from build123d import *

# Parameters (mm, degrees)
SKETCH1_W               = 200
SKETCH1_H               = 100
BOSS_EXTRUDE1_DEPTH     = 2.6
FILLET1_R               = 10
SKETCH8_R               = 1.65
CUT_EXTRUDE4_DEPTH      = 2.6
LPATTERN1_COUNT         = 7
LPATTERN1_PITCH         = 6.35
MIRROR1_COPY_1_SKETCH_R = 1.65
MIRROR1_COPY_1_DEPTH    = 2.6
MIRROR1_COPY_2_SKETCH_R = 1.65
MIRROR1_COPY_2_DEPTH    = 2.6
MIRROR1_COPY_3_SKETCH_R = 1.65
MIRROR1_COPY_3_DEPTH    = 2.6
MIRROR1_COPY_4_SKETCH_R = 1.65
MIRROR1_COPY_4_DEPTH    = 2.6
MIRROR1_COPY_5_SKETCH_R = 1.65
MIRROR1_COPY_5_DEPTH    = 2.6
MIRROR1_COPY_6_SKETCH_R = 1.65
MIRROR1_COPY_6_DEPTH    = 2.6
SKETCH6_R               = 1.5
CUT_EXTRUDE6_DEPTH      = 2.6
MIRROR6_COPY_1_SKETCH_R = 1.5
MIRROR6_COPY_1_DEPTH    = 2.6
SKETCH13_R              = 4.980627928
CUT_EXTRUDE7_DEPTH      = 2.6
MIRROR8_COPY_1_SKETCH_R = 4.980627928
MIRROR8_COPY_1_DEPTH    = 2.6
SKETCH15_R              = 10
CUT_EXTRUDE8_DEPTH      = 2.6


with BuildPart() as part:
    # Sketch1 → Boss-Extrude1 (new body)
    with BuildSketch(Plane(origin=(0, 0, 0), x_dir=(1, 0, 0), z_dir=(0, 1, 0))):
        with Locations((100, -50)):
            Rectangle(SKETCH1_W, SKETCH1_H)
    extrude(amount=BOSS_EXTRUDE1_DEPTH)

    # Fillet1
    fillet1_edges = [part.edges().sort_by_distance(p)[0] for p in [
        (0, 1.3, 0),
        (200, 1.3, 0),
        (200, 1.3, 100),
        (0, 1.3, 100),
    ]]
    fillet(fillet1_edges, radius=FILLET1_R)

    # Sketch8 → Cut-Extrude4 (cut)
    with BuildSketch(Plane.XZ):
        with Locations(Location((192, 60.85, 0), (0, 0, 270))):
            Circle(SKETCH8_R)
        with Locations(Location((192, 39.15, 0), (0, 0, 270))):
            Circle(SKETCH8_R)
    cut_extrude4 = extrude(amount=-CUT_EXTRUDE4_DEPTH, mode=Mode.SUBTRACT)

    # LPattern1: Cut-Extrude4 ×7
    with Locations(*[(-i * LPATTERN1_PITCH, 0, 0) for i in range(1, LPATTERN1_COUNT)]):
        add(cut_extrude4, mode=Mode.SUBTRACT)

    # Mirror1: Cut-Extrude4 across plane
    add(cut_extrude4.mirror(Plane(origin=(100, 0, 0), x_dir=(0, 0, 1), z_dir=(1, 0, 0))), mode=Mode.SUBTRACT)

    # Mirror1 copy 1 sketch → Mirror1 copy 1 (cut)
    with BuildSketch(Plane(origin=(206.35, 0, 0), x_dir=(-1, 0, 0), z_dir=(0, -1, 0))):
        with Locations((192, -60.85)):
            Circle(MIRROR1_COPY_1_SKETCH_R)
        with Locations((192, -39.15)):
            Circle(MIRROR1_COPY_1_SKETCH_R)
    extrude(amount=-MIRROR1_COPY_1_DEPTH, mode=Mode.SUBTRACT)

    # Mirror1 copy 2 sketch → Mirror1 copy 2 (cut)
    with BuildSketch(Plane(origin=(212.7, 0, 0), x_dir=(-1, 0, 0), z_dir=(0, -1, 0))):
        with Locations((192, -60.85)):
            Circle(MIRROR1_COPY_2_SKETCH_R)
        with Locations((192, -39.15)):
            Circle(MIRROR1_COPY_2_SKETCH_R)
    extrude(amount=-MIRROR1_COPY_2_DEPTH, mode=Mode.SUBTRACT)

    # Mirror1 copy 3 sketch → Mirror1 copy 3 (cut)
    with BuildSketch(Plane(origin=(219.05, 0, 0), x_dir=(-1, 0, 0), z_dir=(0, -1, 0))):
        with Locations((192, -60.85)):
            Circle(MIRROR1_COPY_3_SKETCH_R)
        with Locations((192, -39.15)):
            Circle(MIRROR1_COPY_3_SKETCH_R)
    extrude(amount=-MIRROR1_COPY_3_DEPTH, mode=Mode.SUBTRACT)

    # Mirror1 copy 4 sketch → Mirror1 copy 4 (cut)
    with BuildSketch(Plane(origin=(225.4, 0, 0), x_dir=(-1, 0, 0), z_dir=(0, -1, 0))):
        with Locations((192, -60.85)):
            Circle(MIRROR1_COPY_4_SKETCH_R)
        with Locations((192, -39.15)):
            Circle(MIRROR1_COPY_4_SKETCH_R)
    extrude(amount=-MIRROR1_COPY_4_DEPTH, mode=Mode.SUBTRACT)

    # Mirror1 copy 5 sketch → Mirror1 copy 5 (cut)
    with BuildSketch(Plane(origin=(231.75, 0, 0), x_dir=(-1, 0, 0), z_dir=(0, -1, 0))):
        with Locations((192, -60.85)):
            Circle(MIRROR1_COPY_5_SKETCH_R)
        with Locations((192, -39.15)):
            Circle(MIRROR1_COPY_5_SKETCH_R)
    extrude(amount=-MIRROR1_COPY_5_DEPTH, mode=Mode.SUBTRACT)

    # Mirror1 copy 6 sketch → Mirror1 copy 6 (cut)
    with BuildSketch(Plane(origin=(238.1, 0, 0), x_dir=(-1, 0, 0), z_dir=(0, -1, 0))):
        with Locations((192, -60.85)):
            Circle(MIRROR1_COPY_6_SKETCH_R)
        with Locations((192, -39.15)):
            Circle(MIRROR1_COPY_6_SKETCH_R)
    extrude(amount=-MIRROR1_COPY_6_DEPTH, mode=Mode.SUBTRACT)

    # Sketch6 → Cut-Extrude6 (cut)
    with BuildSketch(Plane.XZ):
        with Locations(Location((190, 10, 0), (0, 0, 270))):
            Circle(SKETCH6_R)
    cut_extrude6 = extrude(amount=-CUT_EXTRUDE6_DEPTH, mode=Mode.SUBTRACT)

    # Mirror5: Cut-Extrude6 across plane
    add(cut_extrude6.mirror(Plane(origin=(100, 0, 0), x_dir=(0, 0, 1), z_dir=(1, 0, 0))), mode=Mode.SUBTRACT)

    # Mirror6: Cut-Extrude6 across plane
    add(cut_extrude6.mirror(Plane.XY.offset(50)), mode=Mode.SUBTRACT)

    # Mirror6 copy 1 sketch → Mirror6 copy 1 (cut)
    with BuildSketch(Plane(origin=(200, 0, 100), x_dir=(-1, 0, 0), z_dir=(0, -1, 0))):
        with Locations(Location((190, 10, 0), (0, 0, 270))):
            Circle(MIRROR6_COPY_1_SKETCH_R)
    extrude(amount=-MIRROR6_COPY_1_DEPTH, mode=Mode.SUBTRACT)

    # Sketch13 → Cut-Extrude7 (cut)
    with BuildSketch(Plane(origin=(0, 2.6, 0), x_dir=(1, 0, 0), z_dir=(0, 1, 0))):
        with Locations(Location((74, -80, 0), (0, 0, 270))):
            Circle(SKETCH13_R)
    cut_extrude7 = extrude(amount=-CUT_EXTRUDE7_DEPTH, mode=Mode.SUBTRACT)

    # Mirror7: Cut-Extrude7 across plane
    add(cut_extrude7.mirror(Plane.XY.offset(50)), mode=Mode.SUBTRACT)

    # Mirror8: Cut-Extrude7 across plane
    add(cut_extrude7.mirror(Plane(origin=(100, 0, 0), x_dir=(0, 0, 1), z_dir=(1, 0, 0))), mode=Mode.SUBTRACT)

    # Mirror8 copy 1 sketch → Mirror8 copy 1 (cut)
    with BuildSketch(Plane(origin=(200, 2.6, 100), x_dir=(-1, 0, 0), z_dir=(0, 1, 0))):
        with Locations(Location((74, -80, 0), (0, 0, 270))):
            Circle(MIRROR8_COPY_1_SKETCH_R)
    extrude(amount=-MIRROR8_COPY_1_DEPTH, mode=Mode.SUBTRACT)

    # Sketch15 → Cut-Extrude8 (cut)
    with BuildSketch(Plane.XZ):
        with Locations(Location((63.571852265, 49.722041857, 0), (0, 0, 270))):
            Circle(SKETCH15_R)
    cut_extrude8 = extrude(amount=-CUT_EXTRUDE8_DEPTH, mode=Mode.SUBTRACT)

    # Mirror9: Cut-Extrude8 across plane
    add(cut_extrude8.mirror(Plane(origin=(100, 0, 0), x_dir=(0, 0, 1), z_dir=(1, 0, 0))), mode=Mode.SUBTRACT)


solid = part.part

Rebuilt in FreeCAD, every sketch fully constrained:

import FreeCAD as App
import Part
import Sketcher
Q = App.Units.Quantity


def edges_at(feature, points):
    """Names of the edges that pass closest to the given points."""
    edges = feature.Shape.Edges
    near = lambda p: min(range(len(edges)), key=lambda i: edges[i].distToShape(Part.Vertex(*p))[0])
    return sorted({f"Edge{near(p) + 1}" for p in points})

doc = App.newDocument("Part")
params = doc.addObject("Spreadsheet::Sheet", "Params")
for row, (alias, value) in enumerate([
    ("sketch1_width", "200 mm"),
    ("sketch1_height", "100 mm"),
    ("pad1_length", "2.6 mm"),
    ("fillet_radius", "10 mm"),
    ("sketch2_diameter", "3.3 mm"),
    ("pocket1_length", "2.6 mm"),
    ("linearpattern_pitch", "6.35 mm"),
    ("sketch3_diameter", "3.3 mm"),
    ("pocket2_length", "2.6 mm"),
    ("sketch4_diameter", "3.3 mm"),
    ("pocket3_length", "2.6 mm"),
    ("sketch5_diameter", "3.3 mm"),
    ("pocket4_length", "2.6 mm"),
    ("sketch6_diameter", "3.3 mm"),
    ("pocket5_length", "2.6 mm"),
    ("sketch7_diameter", "3.3 mm"),
    ("pocket6_length", "2.6 mm"),
    ("sketch8_diameter", "3.3 mm"),
    ("pocket7_length", "2.6 mm"),
    ("sketch9_diameter", "3 mm"),
    ("pocket8_length", "2.6 mm"),
    ("sketch10_diameter", "3 mm"),
    ("pocket9_length", "2.6 mm"),
    ("pocket10_length", "2.6 mm"),
    ("pocket11_length", "2.6 mm"),
    ("sketch13_diameter", "20 mm"),
    ("pocket12_length", "2.6 mm"),
], start=1):
    params.set(f"A{row}", alias)
    params.set(f"B{row}", "=" + value)
    params.setAlias(f"B{row}", alias)

body = doc.addObject("PartDesign::Body", "Body")

sketch1 = body.newObject("Sketcher::SketchObject", "Sketch")
sketch1.AttachmentSupport = (doc.getObject("XZ_Plane"), [""])
sketch1.MapMode = "FlatFace"
sketch1.addGeometry(Part.LineSegment(App.Vector(0, 0, 0), App.Vector(0, 100, 0)), False)
sketch1.addGeometry(Part.LineSegment(App.Vector(0, 100, 0), App.Vector(200, 100, 0)), False)
sketch1.addGeometry(Part.LineSegment(App.Vector(200, 100, 0), App.Vector(200, 0, 0)), False)
sketch1.addGeometry(Part.LineSegment(App.Vector(200, 0, 0), App.Vector(0, 0, 0)), False)
sketch1.addConstraint(Sketcher.Constraint("Coincident", 0, 2, 1, 1))
sketch1.addConstraint(Sketcher.Constraint("Coincident", 1, 2, 2, 1))
sketch1.addConstraint(Sketcher.Constraint("Coincident", 2, 2, 3, 1))
sketch1.addConstraint(Sketcher.Constraint("Coincident", 3, 2, 0, 1))
sketch1.addConstraint(Sketcher.Constraint("Vertical", 0))
sketch1.addConstraint(Sketcher.Constraint("Horizontal", 1))
sketch1.addConstraint(Sketcher.Constraint("Vertical", 2))
sketch1.addConstraint(Sketcher.Constraint("Horizontal", 3))
sketch1.addConstraint(Sketcher.Constraint("Coincident", 3, 2, -1, 1))
sketch1.addConstraint(Sketcher.Constraint("DistanceX", 1, 1, 1, 2, Q("200 mm")))
sketch1.addConstraint(Sketcher.Constraint("DistanceY", 0, 1, 0, 2, Q("100 mm")))
sketch1.setExpression("Constraints[9]", "Params.sketch1_width")
sketch1.setExpression("Constraints[10]", "Params.sketch1_height")
pad1 = body.newObject("PartDesign::Pad", "Pad")
pad1.Profile = sketch1
pad1.setExpression("Length", "Params.pad1_length")
pad1.Reversed = True
doc.recompute()

fillet = body.newObject("PartDesign::Fillet", "Fillet")
fillet.Base = (pad1, edges_at(pad1, [
    (0, 1.3, 0),
    (200, 1.3, 0),
    (200, 1.3, 100),
    (0, 1.3, 100),
]))
fillet.setExpression("Radius", "Params.fillet_radius")

sketch2 = body.newObject("Sketcher::SketchObject", "Sketch001")
sketch2.AttachmentSupport = (doc.getObject("XZ_Plane"), [""])
sketch2.MapMode = "FlatFace"
sketch2.addGeometry(Part.Circle(App.Vector(192, 60.9, 0), App.Vector(0, 0, 1), 1.6), False)
sketch2.addGeometry(Part.Circle(App.Vector(192, 39.1, 0), App.Vector(0, 0, 1), 1.6), False)
sketch2.addConstraint(Sketcher.Constraint("Equal", 0, 1))
sketch2.addConstraint(Sketcher.Constraint("Vertical", 0, 3, 1, 3))
sketch2.addConstraint(Sketcher.Constraint("Diameter", 0, Q("3.3 mm")))
sketch2.addConstraint(Sketcher.Constraint("DistanceX", -1, 1, 0, 3, Q("192 mm")))
sketch2.addConstraint(Sketcher.Constraint("DistanceY", 1, 3, 0, 3, Q("21.7 mm")))
sketch2.addConstraint(Sketcher.Constraint("DistanceY", -1, 1, 0, 3, Q("60.85 mm")))
sketch2.setExpression("Constraints[2]", "Params.sketch2_diameter")
pocket1 = body.newObject("PartDesign::Pocket", "Pocket")
pocket1.Profile = sketch2
pocket1.setExpression("Length", "Params.pocket1_length")
doc.recompute()

linearpattern = body.newObject("PartDesign::LinearPattern", "LinearPattern")
linearpattern.Originals = [pocket1]
linearpattern.Direction = (doc.getObject("X_Axis"), [""])
linearpattern.Mode = "offset"
linearpattern.setExpression("Offset", "Params.linearpattern_pitch")
linearpattern.Occurrences = 7
linearpattern.Reversed = True
body.Tip = linearpattern
doc.recompute()

datumplane = body.newObject("PartDesign::Plane", "DatumPlane")
datumplane.AttachmentSupport = (doc.getObject("YZ_Plane"), [""])
datumplane.MapMode = "FlatFace"
datumplane.AttachmentOffset = App.Placement(App.Vector(0, 0, 100), App.Rotation())
mirrored = body.newObject("PartDesign::Mirrored", "Mirrored")
mirrored.Originals = [pocket1]
mirrored.MirrorPlane = (datumplane, [""])
body.Tip = mirrored

sketch3 = body.newObject("Sketcher::SketchObject", "Sketch002")
sketch3.AttachmentSupport = (doc.getObject("XZ_Plane"), [""])
sketch3.MapMode = "FlatFace"
sketch3.addGeometry(Part.Circle(App.Vector(14.3, 60.9, 0), App.Vector(0, 0, 1), 1.6), False)
sketch3.addGeometry(Part.Circle(App.Vector(14.3, 39.1, 0), App.Vector(0, 0, 1), 1.6), False)
sketch3.addConstraint(Sketcher.Constraint("Equal", 0, 1))
sketch3.addConstraint(Sketcher.Constraint("Vertical", 0, 3, 1, 3))
sketch3.addConstraint(Sketcher.Constraint("Diameter", 0, Q("3.3 mm")))
sketch3.addConstraint(Sketcher.Constraint("DistanceY", 1, 3, 0, 3, Q("21.7 mm")))
sketch3.addConstraint(Sketcher.Constraint("DistanceX", -1, 1, 0, 3, Q("14.35 mm")))
sketch3.addConstraint(Sketcher.Constraint("DistanceY", -1, 1, 0, 3, Q("60.85 mm")))
sketch3.setExpression("Constraints[2]", "Params.sketch3_diameter")
pocket2 = body.newObject("PartDesign::Pocket", "Pocket001")
pocket2.Profile = sketch3
pocket2.setExpression("Length", "Params.pocket2_length")

sketch4 = body.newObject("Sketcher::SketchObject", "Sketch003")
sketch4.AttachmentSupport = (doc.getObject("XZ_Plane"), [""])
sketch4.MapMode = "FlatFace"
sketch4.addGeometry(Part.Circle(App.Vector(20.7, 60.9, 0), App.Vector(0, 0, 1), 1.6), False)
sketch4.addGeometry(Part.Circle(App.Vector(20.7, 39.1, 0), App.Vector(0, 0, 1), 1.6), False)
sketch4.addConstraint(Sketcher.Constraint("Equal", 0, 1))
sketch4.addConstraint(Sketcher.Constraint("Vertical", 0, 3, 1, 3))
sketch4.addConstraint(Sketcher.Constraint("Diameter", 0, Q("3.3 mm")))
sketch4.addConstraint(Sketcher.Constraint("DistanceX", -1, 1, 0, 3, Q("20.7 mm")))
sketch4.addConstraint(Sketcher.Constraint("DistanceY", 1, 3, 0, 3, Q("21.7 mm")))
sketch4.addConstraint(Sketcher.Constraint("DistanceY", -1, 1, 0, 3, Q("60.85 mm")))
sketch4.setExpression("Constraints[2]", "Params.sketch4_diameter")
pocket3 = body.newObject("PartDesign::Pocket", "Pocket002")
pocket3.Profile = sketch4
pocket3.setExpression("Length", "Params.pocket3_length")

sketch5 = body.newObject("Sketcher::SketchObject", "Sketch004")
sketch5.AttachmentSupport = (doc.getObject("XZ_Plane"), [""])
sketch5.MapMode = "FlatFace"
sketch5.addGeometry(Part.Circle(App.Vector(27.1, 60.9, 0), App.Vector(0, 0, 1), 1.6), False)
sketch5.addGeometry(Part.Circle(App.Vector(27.1, 39.1, 0), App.Vector(0, 0, 1), 1.6), False)
sketch5.addConstraint(Sketcher.Constraint("Equal", 0, 1))
sketch5.addConstraint(Sketcher.Constraint("Vertical", 0, 3, 1, 3))
sketch5.addConstraint(Sketcher.Constraint("Diameter", 0, Q("3.3 mm")))
sketch5.addConstraint(Sketcher.Constraint("DistanceY", 1, 3, 0, 3, Q("21.7 mm")))
sketch5.addConstraint(Sketcher.Constraint("DistanceX", -1, 1, 0, 3, Q("27.05 mm")))
sketch5.addConstraint(Sketcher.Constraint("DistanceY", -1, 1, 0, 3, Q("60.85 mm")))
sketch5.setExpression("Constraints[2]", "Params.sketch5_diameter")
pocket4 = body.newObject("PartDesign::Pocket", "Pocket003")
pocket4.Profile = sketch5
pocket4.setExpression("Length", "Params.pocket4_length")

sketch6 = body.newObject("Sketcher::SketchObject", "Sketch005")
sketch6.AttachmentSupport = (doc.getObject("XZ_Plane"), [""])
sketch6.MapMode = "FlatFace"
sketch6.addGeometry(Part.Circle(App.Vector(33.4, 60.9, 0), App.Vector(0, 0, 1), 1.6), False)
sketch6.addGeometry(Part.Circle(App.Vector(33.4, 39.1, 0), App.Vector(0, 0, 1), 1.6), False)
sketch6.addConstraint(Sketcher.Constraint("Equal", 0, 1))
sketch6.addConstraint(Sketcher.Constraint("Vertical", 0, 3, 1, 3))
sketch6.addConstraint(Sketcher.Constraint("Diameter", 0, Q("3.3 mm")))
sketch6.addConstraint(Sketcher.Constraint("DistanceX", -1, 1, 0, 3, Q("33.4 mm")))
sketch6.addConstraint(Sketcher.Constraint("DistanceY", 1, 3, 0, 3, Q("21.7 mm")))
sketch6.addConstraint(Sketcher.Constraint("DistanceY", -1, 1, 0, 3, Q("60.85 mm")))
sketch6.setExpression("Constraints[2]", "Params.sketch6_diameter")
pocket5 = body.newObject("PartDesign::Pocket", "Pocket004")
pocket5.Profile = sketch6
pocket5.setExpression("Length", "Params.pocket5_length")

sketch7 = body.newObject("Sketcher::SketchObject", "Sketch006")
sketch7.AttachmentSupport = (doc.getObject("XZ_Plane"), [""])
sketch7.MapMode = "FlatFace"
sketch7.addGeometry(Part.Circle(App.Vector(39.8, 60.9, 0), App.Vector(0, 0, 1), 1.6), False)
sketch7.addGeometry(Part.Circle(App.Vector(39.8, 39.1, 0), App.Vector(0, 0, 1), 1.6), False)
sketch7.addConstraint(Sketcher.Constraint("Equal", 0, 1))
sketch7.addConstraint(Sketcher.Constraint("Vertical", 0, 3, 1, 3))
sketch7.addConstraint(Sketcher.Constraint("Diameter", 0, Q("3.3 mm")))
sketch7.addConstraint(Sketcher.Constraint("DistanceY", 1, 3, 0, 3, Q("21.7 mm")))
sketch7.addConstraint(Sketcher.Constraint("DistanceX", -1, 1, 0, 3, Q("39.75 mm")))
sketch7.addConstraint(Sketcher.Constraint("DistanceY", -1, 1, 0, 3, Q("60.85 mm")))
sketch7.setExpression("Constraints[2]", "Params.sketch7_diameter")
pocket6 = body.newObject("PartDesign::Pocket", "Pocket005")
pocket6.Profile = sketch7
pocket6.setExpression("Length", "Params.pocket6_length")

sketch8 = body.newObject("Sketcher::SketchObject", "Sketch007")
sketch8.AttachmentSupport = (doc.getObject("XZ_Plane"), [""])
sketch8.MapMode = "FlatFace"
sketch8.addGeometry(Part.Circle(App.Vector(46.1, 60.9, 0), App.Vector(0, 0, 1), 1.6), False)
sketch8.addGeometry(Part.Circle(App.Vector(46.1, 39.1, 0), App.Vector(0, 0, 1), 1.6), False)
sketch8.addConstraint(Sketcher.Constraint("Equal", 0, 1))
sketch8.addConstraint(Sketcher.Constraint("Vertical", 0, 3, 1, 3))
sketch8.addConstraint(Sketcher.Constraint("Diameter", 0, Q("3.3 mm")))
sketch8.addConstraint(Sketcher.Constraint("DistanceX", -1, 1, 0, 3, Q("46.1 mm")))
sketch8.addConstraint(Sketcher.Constraint("DistanceY", 1, 3, 0, 3, Q("21.7 mm")))
sketch8.addConstraint(Sketcher.Constraint("DistanceY", -1, 1, 0, 3, Q("60.85 mm")))
sketch8.setExpression("Constraints[2]", "Params.sketch8_diameter")
pocket7 = body.newObject("PartDesign::Pocket", "Pocket006")
pocket7.Profile = sketch8
pocket7.setExpression("Length", "Params.pocket7_length")

sketch9 = body.newObject("Sketcher::SketchObject", "Sketch008")
sketch9.AttachmentSupport = (doc.getObject("XZ_Plane"), [""])
sketch9.MapMode = "FlatFace"
sketch9.addGeometry(Part.Circle(App.Vector(190, 10, 0), App.Vector(0, 0, 1), 1.5), False)
sketch9.addConstraint(Sketcher.Constraint("Diameter", 0, Q("3 mm")))
sketch9.addConstraint(Sketcher.Constraint("DistanceX", -1, 1, 0, 3, Q("190 mm")))
sketch9.addConstraint(Sketcher.Constraint("DistanceY", -1, 1, 0, 3, Q("10 mm")))
sketch9.setExpression("Constraints[0]", "Params.sketch9_diameter")
pocket8 = body.newObject("PartDesign::Pocket", "Pocket007")
pocket8.Profile = sketch9
pocket8.setExpression("Length", "Params.pocket8_length")
doc.recompute()

datumplane2 = body.newObject("PartDesign::Plane", "DatumPlane001")
datumplane2.AttachmentSupport = (doc.getObject("YZ_Plane"), [""])
datumplane2.MapMode = "FlatFace"
datumplane2.AttachmentOffset = App.Placement(App.Vector(0, 0, 100), App.Rotation())
mirrored2 = body.newObject("PartDesign::Mirrored", "Mirrored001")
mirrored2.Originals = [pocket8]
mirrored2.MirrorPlane = (datumplane2, [""])
body.Tip = mirrored2
doc.recompute()

datumplane3 = body.newObject("PartDesign::Plane", "DatumPlane002")
datumplane3.AttachmentSupport = (doc.getObject("XY_Plane"), [""])
datumplane3.MapMode = "FlatFace"
datumplane3.AttachmentOffset = App.Placement(App.Vector(0, 0, 50), App.Rotation())
mirrored3 = body.newObject("PartDesign::Mirrored", "Mirrored002")
mirrored3.Originals = [pocket8]
mirrored3.MirrorPlane = (datumplane3, [""])
body.Tip = mirrored3

sketch10 = body.newObject("Sketcher::SketchObject", "Sketch009")
sketch10.AttachmentSupport = (doc.getObject("XZ_Plane"), [""])
sketch10.MapMode = "FlatFace"
sketch10.addGeometry(Part.Circle(App.Vector(10, 90, 0), App.Vector(0, 0, 1), 1.5), False)
sketch10.addConstraint(Sketcher.Constraint("Diameter", 0, Q("3 mm")))
sketch10.addConstraint(Sketcher.Constraint("DistanceX", -1, 1, 0, 3, Q("10 mm")))
sketch10.addConstraint(Sketcher.Constraint("DistanceY", -1, 1, 0, 3, Q("90 mm")))
sketch10.setExpression("Constraints[0]", "Params.sketch10_diameter")
pocket9 = body.newObject("PartDesign::Pocket", "Pocket008")
pocket9.Profile = sketch10
pocket9.setExpression("Length", "Params.pocket9_length")

sketch11 = body.newObject("Sketcher::SketchObject", "Sketch010")
sketch11.AttachmentSupport = (doc.getObject("XZ_Plane"), [""])
sketch11.MapMode = "FlatFace"
sketch11.AttachmentOffset = App.Placement(App.Vector(0, 0, -2.6), App.Rotation())
sketch11.addGeometry(Part.Circle(App.Vector(74, 80, 0), App.Vector(0, 0, 1), 5), False)
sketch11.addConstraint(Sketcher.Constraint("DistanceX", -1, 1, 0, 3, Q("74 mm")))
sketch11.addConstraint(Sketcher.Constraint("DistanceY", -1, 1, 0, 3, Q("80 mm")))
sketch11.addConstraint(Sketcher.Constraint("Diameter", 0, Q("9.961256 mm")))
pocket10 = body.newObject("PartDesign::Pocket", "Pocket009")
pocket10.Profile = sketch11
pocket10.setExpression("Length", "Params.pocket10_length")
pocket10.Reversed = True
doc.recompute()

datumplane4 = body.newObject("PartDesign::Plane", "DatumPlane003")
datumplane4.AttachmentSupport = (doc.getObject("XY_Plane"), [""])
datumplane4.MapMode = "FlatFace"
datumplane4.AttachmentOffset = App.Placement(App.Vector(0, 0, 50), App.Rotation())
mirrored4 = body.newObject("PartDesign::Mirrored", "Mirrored003")
mirrored4.Originals = [pocket10]
mirrored4.MirrorPlane = (datumplane4, [""])
body.Tip = mirrored4
doc.recompute()

datumplane5 = body.newObject("PartDesign::Plane", "DatumPlane004")
datumplane5.AttachmentSupport = (doc.getObject("YZ_Plane"), [""])
datumplane5.MapMode = "FlatFace"
datumplane5.AttachmentOffset = App.Placement(App.Vector(0, 0, 100), App.Rotation())
mirrored5 = body.newObject("PartDesign::Mirrored", "Mirrored004")
mirrored5.Originals = [pocket10]
mirrored5.MirrorPlane = (datumplane5, [""])
body.Tip = mirrored5

sketch12 = body.newObject("Sketcher::SketchObject", "Sketch011")
sketch12.AttachmentSupport = (doc.getObject("XZ_Plane"), [""])
sketch12.MapMode = "FlatFace"
sketch12.AttachmentOffset = App.Placement(App.Vector(0, 0, -2.6), App.Rotation())
sketch12.addGeometry(Part.Circle(App.Vector(126, 20, 0), App.Vector(0, 0, 1), 5), False)
sketch12.addConstraint(Sketcher.Constraint("DistanceX", -1, 1, 0, 3, Q("126 mm")))
sketch12.addConstraint(Sketcher.Constraint("DistanceY", -1, 1, 0, 3, Q("20 mm")))
sketch12.addConstraint(Sketcher.Constraint("Diameter", 0, Q("9.961256 mm")))
pocket11 = body.newObject("PartDesign::Pocket", "Pocket010")
pocket11.Profile = sketch12
pocket11.setExpression("Length", "Params.pocket11_length")
pocket11.Reversed = True

sketch13 = body.newObject("Sketcher::SketchObject", "Sketch012")
sketch13.AttachmentSupport = (doc.getObject("XZ_Plane"), [""])
sketch13.MapMode = "FlatFace"
sketch13.addGeometry(Part.Circle(App.Vector(64, 50, 0), App.Vector(0, 0, 1), 10), False)
sketch13.addConstraint(Sketcher.Constraint("Diameter", 0, Q("20 mm")))
sketch13.addConstraint(Sketcher.Constraint("DistanceY", -1, 1, 0, 3, Q("49.722042 mm")))
sketch13.addConstraint(Sketcher.Constraint("DistanceX", -1, 1, 0, 3, Q("63.571852 mm")))
sketch13.setExpression("Constraints[0]", "Params.sketch13_diameter")
pocket12 = body.newObject("PartDesign::Pocket", "Pocket011")
pocket12.Profile = sketch13
pocket12.setExpression("Length", "Params.pocket12_length")
doc.recompute()

datumplane6 = body.newObject("PartDesign::Plane", "DatumPlane005")
datumplane6.AttachmentSupport = (doc.getObject("YZ_Plane"), [""])
datumplane6.MapMode = "FlatFace"
datumplane6.AttachmentOffset = App.Placement(App.Vector(0, 0, 100), App.Rotation())
mirrored6 = body.newObject("PartDesign::Mirrored", "Mirrored005")
mirrored6.Originals = [pocket12]
mirrored6.MirrorPlane = (datumplane6, [""])
body.Tip = mirrored6

doc.recompute()
